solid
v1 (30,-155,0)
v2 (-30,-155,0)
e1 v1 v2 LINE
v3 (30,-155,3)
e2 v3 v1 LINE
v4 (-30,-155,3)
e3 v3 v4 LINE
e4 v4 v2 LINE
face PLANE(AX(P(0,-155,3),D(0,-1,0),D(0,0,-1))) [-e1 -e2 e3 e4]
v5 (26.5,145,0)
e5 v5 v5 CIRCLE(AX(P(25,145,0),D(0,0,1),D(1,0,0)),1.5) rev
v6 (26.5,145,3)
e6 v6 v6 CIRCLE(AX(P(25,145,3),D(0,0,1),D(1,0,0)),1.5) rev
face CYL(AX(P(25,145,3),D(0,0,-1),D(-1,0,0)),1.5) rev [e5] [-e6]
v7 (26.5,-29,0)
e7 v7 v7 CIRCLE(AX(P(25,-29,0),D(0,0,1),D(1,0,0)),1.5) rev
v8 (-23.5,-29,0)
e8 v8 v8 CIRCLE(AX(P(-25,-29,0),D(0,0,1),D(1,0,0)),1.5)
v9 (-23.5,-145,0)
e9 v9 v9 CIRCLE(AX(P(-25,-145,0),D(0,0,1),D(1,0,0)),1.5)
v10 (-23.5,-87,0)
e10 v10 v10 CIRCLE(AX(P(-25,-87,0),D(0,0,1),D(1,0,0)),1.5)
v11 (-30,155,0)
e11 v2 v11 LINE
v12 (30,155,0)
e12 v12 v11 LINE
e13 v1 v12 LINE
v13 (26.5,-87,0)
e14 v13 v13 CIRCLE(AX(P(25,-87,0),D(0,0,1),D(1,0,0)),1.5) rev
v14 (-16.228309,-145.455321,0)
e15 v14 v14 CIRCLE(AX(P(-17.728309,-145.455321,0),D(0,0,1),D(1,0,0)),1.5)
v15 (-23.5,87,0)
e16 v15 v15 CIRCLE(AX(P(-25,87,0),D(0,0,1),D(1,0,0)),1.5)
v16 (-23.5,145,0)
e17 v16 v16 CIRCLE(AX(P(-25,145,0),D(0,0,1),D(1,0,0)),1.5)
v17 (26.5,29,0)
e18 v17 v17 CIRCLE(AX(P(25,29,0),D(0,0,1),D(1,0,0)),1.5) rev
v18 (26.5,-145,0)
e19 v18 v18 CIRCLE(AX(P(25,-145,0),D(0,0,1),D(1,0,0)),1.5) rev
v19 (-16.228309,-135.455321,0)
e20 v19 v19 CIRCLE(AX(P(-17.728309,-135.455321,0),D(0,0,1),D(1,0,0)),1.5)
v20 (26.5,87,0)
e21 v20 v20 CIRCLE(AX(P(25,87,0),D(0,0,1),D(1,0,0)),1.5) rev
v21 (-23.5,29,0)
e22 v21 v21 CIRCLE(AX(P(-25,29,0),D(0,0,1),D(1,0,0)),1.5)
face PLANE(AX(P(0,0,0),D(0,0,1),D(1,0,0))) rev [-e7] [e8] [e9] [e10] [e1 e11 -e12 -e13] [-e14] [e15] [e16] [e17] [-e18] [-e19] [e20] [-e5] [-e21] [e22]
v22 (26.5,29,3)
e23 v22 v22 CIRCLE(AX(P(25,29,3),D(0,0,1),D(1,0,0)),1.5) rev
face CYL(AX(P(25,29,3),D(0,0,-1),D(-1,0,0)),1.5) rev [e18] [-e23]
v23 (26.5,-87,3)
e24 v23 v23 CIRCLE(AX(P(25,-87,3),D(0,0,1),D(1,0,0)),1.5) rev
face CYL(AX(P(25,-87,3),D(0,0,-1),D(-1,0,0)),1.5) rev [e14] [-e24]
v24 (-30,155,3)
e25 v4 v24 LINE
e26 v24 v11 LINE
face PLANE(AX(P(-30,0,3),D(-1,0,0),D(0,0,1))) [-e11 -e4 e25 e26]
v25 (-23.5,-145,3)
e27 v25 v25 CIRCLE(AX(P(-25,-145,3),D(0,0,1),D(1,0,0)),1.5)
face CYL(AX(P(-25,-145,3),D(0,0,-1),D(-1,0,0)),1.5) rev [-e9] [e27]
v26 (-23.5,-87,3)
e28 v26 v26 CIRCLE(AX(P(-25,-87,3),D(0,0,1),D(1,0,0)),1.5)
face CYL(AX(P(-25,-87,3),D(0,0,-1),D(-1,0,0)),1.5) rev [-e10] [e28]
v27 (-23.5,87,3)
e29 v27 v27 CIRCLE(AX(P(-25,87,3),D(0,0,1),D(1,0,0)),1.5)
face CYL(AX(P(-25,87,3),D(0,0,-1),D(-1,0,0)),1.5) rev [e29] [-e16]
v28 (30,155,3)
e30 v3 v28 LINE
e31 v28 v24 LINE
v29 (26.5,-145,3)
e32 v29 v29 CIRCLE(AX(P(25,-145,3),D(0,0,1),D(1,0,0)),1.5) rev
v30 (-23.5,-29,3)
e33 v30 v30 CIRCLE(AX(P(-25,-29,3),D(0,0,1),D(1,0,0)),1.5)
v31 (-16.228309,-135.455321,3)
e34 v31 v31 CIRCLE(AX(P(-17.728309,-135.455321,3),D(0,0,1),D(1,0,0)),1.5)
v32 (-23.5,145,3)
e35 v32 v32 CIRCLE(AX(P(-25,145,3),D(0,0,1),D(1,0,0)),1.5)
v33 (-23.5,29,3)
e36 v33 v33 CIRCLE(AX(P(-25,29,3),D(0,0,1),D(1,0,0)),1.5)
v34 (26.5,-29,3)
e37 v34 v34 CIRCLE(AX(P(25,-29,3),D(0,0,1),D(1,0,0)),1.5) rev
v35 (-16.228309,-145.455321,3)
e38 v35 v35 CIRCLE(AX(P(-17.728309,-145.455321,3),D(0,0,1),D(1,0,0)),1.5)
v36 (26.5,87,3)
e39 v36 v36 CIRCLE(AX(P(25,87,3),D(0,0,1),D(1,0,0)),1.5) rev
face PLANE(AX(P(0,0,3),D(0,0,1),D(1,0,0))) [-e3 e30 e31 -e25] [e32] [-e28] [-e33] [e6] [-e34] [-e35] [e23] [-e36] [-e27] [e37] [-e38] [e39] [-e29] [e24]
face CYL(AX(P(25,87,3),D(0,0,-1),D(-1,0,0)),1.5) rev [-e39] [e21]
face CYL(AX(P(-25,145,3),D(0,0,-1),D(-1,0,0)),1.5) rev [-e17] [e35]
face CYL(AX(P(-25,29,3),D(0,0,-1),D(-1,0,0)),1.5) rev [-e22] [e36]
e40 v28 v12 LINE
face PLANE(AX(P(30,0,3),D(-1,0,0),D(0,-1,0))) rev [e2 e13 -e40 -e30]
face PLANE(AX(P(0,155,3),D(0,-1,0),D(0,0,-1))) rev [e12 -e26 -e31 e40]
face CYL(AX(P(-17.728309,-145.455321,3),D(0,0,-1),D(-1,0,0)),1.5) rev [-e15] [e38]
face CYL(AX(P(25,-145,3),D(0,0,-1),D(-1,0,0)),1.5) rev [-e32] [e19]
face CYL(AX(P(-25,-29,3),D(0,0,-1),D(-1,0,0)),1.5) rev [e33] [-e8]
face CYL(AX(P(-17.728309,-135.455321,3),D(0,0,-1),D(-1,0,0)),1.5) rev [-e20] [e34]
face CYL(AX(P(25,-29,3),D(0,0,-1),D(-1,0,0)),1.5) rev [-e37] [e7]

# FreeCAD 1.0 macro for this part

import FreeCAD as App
import Part
import Sketcher
Q = App.Units.Quantity


def add_polygon(sketch, points):
    """Adds a closed chain of lines whose ends are joined by coincident constraints."""
    first, n = sketch.GeometryCount, len(points)
    for a, b in zip(points, points[1:] + points[:1]):
        sketch.addGeometry(Part.LineSegment(App.Vector(*a, 0), App.Vector(*b, 0)), False)
    for i in range(n):
        sketch.addConstraint(Sketcher.Constraint("Coincident", first + i, 2, first + (i + 1) % n, 1))

doc = App.newDocument("Part")
body = doc.addObject("PartDesign::Body", "Body")

sketch1 = body.newObject("Sketcher::SketchObject", "Sketch")
sketch1.AttachmentSupport = (doc.getObject("XY_Plane"), [""])
sketch1.MapMode = "FlatFace"
add_polygon(sketch1, [(30, -155), (30, 155), (-30, 155), (-30, -155)])
sketch1.addGeometry(Part.Circle(App.Vector(-25, -145, 0), App.Vector(0, 0, 1), 1.5), False)
sketch1.addGeometry(Part.Circle(App.Vector(-17.7, -145.5, 0), App.Vector(0, 0, 1), 1.5), False)
sketch1.addGeometry(Part.Circle(App.Vector(-17.7, -135.5, 0), App.Vector(0, 0, 1), 1.5), False)
sketch1.addGeometry(Part.Circle(App.Vector(-25, -87, 0), App.Vector(0, 0, 1), 1.5), False)
sketch1.addGeometry(Part.Circle(App.Vector(-25, -29, 0), App.Vector(0, 0, 1), 1.5), False)
sketch1.addGeometry(Part.Circle(App.Vector(25, -145, 0), App.Vector(0, 0, 1), 1.5), False)
sketch1.addGeometry(Part.Circle(App.Vector(25, -87, 0), App.Vector(0, 0, 1), 1.5), False)
sketch1.addGeometry(Part.Circle(App.Vector(25, -29, 0), App.Vector(0, 0, 1), 1.5), False)
sketch1.addGeometry(Part.Circle(App.Vector(-25, 29, 0), App.Vector(0, 0, 1), 1.5), False)
sketch1.addGeometry(Part.Circle(App.Vector(-25, 87, 0), App.Vector(0, 0, 1), 1.5), False)
sketch1.addGeometry(Part.Circle(App.Vector(-25, 145, 0), App.Vector(0, 0, 1), 1.5), False)
sketch1.addGeometry(Part.Circle(App.Vector(25, 29, 0), App.Vector(0, 0, 1), 1.5), False)
sketch1.addGeometry(Part.Circle(App.Vector(25, 87, 0), App.Vector(0, 0, 1), 1.5), False)
sketch1.addGeometry(Part.Circle(App.Vector(25, 145, 0), App.Vector(0, 0, 1), 1.5), False)
sketch1.addConstraint([
    Sketcher.Constraint("Vertical", 0),
    Sketcher.Constraint("Horizontal", 1),
    Sketcher.Constraint("Vertical", 2),
    Sketcher.Constraint("Horizontal", 3),
    Sketcher.Constraint("Equal", 4, 5),
    Sketcher.Constraint("Equal", 5, 6),
    Sketcher.Constraint("Equal", 6, 7),
    Sketcher.Constraint("Equal", 7, 8),
    Sketcher.Constraint("Equal", 8, 9),
    Sketcher.Constraint("Equal", 9, 10),
    Sketcher.Constraint("Equal", 10, 11),
    Sketcher.Constraint("Equal", 11, 12),
    Sketcher.Constraint("Equal", 12, 13),
    Sketcher.Constraint("Equal", 13, 14),
    Sketcher.Constraint("Equal", 14, 15),
    Sketcher.Constraint("Equal", 15, 16),
    Sketcher.Constraint("Equal", 16, 17),
    Sketcher.Constraint("Symmetric", 11, 3, 12, 3, -1, 1),
    Sketcher.Constraint("Symmetric", 10, 3, 13, 3, -1, 1),
    Sketcher.Constraint("Symmetric", 9, 3, 14, 3, -1, 1),
    Sketcher.Constraint("Symmetric", 8, 3, 15, 3, -1, 1),
    Sketcher.Constraint("Symmetric", 7, 3, 16, 3, -1, 1),
    Sketcher.Constraint("Symmetric", 4, 3, 17, 3, -1, 1),
    Sketcher.Constraint("Symmetric", 0, 2, 2, 2, -1, 1),
    Sketcher.Constraint("Symmetric", 4, 3, 9, 3, -2),
    Sketcher.Constraint("Symmetric", 7, 3, 10, 3, -2),
    Sketcher.Constraint("Symmetric", 8, 3, 11, 3, -2),
    Sketcher.Constraint("Vertical", 5, 3, 6, 3),
    Sketcher.Constraint("Vertical", 4, 3, 7, 3),
    Sketcher.Constraint("Vertical", 7, 3, 8, 3),
    Sketcher.Constraint("Diameter", 4, Q("3 mm")),
    Sketcher.Constraint("DistanceX", 1, 2, 1, 1, Q("60 mm")),
    Sketcher.Constraint("DistanceY", 0, 1, 0, 2, Q("310 mm")),
    Sketcher.Constraint("DistanceX", 4, 3, -1, 1, Q("25 mm")),
    Sketcher.Constraint("DistanceY", 4, 3, -1, 1, Q("145 mm")),
    Sketcher.Constraint("DistanceY", 7, 3, -1, 1, Q("87 mm")),
    Sketcher.Constraint("DistanceY", 8, 3, -1, 1, Q("29 mm")),
    Sketcher.Constraint("DistanceY", 5, 3, 6, 3, Q("10 mm")),
    Sketcher.Constraint("DistanceX", 5, 3, -1, 1, Q("17.728309 mm")),
    Sketcher.Constraint("DistanceY", 5, 3, -1, 1, Q("145.455321 mm")),
])
pad1 = body.newObject("PartDesign::Pad", "Pad")
pad1.Profile = sketch1
pad1.Length = 3

doc.recompute()
